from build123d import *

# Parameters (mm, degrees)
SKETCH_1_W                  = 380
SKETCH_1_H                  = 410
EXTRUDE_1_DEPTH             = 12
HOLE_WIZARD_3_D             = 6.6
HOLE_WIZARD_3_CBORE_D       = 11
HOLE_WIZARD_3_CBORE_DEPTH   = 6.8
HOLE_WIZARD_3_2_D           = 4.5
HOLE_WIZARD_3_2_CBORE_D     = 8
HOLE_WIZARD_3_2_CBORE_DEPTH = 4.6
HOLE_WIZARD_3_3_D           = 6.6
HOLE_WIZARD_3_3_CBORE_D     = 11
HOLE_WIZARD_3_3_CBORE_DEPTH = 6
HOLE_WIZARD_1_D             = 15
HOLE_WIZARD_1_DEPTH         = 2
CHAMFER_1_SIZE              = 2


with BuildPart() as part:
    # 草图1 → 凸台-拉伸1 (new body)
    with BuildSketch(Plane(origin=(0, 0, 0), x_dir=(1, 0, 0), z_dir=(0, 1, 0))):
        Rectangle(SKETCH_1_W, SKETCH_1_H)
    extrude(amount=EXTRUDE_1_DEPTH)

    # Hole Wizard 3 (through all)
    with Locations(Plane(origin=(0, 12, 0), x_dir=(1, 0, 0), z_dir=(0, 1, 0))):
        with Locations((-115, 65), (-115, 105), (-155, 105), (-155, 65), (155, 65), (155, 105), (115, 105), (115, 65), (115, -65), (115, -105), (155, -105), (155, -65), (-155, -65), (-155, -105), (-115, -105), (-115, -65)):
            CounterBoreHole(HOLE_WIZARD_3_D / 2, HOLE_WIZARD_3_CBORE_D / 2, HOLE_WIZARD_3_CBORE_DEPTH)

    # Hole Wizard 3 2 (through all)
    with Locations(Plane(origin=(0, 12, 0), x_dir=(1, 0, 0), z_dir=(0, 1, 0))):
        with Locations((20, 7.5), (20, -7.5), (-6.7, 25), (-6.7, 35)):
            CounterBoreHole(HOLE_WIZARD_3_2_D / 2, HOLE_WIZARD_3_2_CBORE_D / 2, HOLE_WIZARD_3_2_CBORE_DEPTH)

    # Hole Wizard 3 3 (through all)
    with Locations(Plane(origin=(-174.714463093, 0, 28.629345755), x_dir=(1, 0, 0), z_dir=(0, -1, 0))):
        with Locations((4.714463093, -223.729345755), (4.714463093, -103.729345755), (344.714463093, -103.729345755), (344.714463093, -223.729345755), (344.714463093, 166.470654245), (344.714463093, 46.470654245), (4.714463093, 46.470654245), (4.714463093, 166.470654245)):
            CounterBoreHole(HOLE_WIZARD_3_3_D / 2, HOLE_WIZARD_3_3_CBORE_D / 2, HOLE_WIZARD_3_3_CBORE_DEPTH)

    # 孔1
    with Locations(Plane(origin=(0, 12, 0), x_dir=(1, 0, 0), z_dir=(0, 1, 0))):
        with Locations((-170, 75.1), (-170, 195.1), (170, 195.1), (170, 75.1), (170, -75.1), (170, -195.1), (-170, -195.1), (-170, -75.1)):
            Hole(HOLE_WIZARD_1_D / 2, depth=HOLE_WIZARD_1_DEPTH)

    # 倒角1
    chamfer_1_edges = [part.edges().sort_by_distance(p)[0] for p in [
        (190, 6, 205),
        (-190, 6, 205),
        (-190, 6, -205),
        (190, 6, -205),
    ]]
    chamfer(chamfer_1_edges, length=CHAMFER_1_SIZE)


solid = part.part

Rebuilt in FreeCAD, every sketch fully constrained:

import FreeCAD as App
import Part
import Sketcher
from FreeCAD import Vector


def edges_at(feature, points):
    """Names of the edges that pass closest to the given points."""
    edges = feature.Shape.Edges
    near = lambda p: min(range(len(edges)), key=lambda i: edges[i].distToShape(Part.Vertex(*p))[0])
    return sorted({f"Edge{near(p) + 1}" for p in points})

doc = App.newDocument("Part")
body = doc.addObject("PartDesign::Body", "Body")

# Sketch on XZ plane
sketch1 = body.newObject("Sketcher::SketchObject", "Sketch")
sketch1.AttachmentSupport = (doc.getObject("XZ_Plane"), [""])
sketch1.MapMode = "FlatFace"
sketch1.addGeometry([
    Part.LineSegment(Vector(-190, -205, 0), Vector(-190, 205, 0)),
    Part.LineSegment(Vector(-190, 205, 0), Vector(190, 205, 0)),
    Part.LineSegment(Vector(190, 205, 0), Vector(190, -205, 0)),
    Part.LineSegment(Vector(190, -205, 0), Vector(-190, -205, 0)),
], False)
sketch1.addConstraint([
    Sketcher.Constraint("Coincident", 0, 2, 1, 1),
    Sketcher.Constraint("Coincident", 1, 2, 2, 1),
    Sketcher.Constraint("Coincident", 2, 2, 3, 1),
    Sketcher.Constraint("Coincident", 3, 2, 0, 1),
    Sketcher.Constraint("Vertical", 0),
    Sketcher.Constraint("Horizontal", 1),
    Sketcher.Constraint("Vertical", 2),
    Sketcher.Constraint("Horizontal", 3),
    Sketcher.Constraint("Symmetric", 0, 2, 2, 2, -1, 1),
    Sketcher.Constraint("DistanceX", 1, 1, 1, 2, 380.0),
    Sketcher.Constraint("DistanceY", 0, 1, 0, 2, 410.0),
])
pad1 = body.newObject("PartDesign::Pad", "Pad")
pad1.Profile = sketch1
pad1.Length = 12
pad1.Reversed = True

# Sketch on XZ plane
sketch2 = body.newObject("Sketcher::SketchObject", "Sketch001")
sketch2.AttachmentSupport = (doc.getObject("XZ_Plane"), [""])
sketch2.MapMode = "FlatFace"
sketch2.AttachmentOffset = App.Placement(Vector(0, 0, -12), App.Rotation())
sketch2.addGeometry([
    Part.Circle(Vector(-115, -65, 0), Vector(0, 0, 1), 3.3),  # 0
    Part.Circle(Vector(-115, -105, 0), Vector(0, 0, 1), 3.3),  # 1
    Part.Circle(Vector(-155, -105, 0), Vector(0, 0, 1), 3.3),  # 2
    Part.Circle(Vector(-155, -65, 0), Vector(0, 0, 1), 3.3),  # 3
    Part.Circle(Vector(155, -65, 0), Vector(0, 0, 1), 3.3),  # 4
    Part.Circle(Vector(155, -105, 0), Vector(0, 0, 1), 3.3),  # 5
    Part.Circle(Vector(115, -105, 0), Vector(0, 0, 1), 3.3),  # 6
    Part.Circle(Vector(115, -65, 0), Vector(0, 0, 1), 3.3),  # 7
    Part.Circle(Vector(115, 65, 0), Vector(0, 0, 1), 3.3),  # 8
    Part.Circle(Vector(115, 105, 0), Vector(0, 0, 1), 3.3),  # 9
    Part.Circle(Vector(155, 105, 0), Vector(0, 0, 1), 3.3),  # 10
    Part.Circle(Vector(155, 65, 0), Vector(0, 0, 1), 3.3),  # 11
    Part.Circle(Vector(-155, 65, 0), Vector(0, 0, 1), 3.3),  # 12
    Part.Circle(Vector(-155, 105, 0), Vector(0, 0, 1), 3.3),  # 13
    Part.Circle(Vector(-115, 105, 0), Vector(0, 0, 1), 3.3),  # 14
    Part.Circle(Vector(-115, 65, 0), Vector(0, 0, 1), 3.3),  # 15
], False)
sketch2.addConstraint([
    Sketcher.Constraint("Equal", 0, 1),
    Sketcher.Constraint("Equal", 1, 2),
    Sketcher.Constraint("Equal", 2, 3),
    Sketcher.Constraint("Equal", 3, 4),
    Sketcher.Constraint("Equal", 4, 5),
    Sketcher.Constraint("Equal", 5, 6),
    Sketcher.Constraint("Equal", 6, 7),
    Sketcher.Constraint("Equal", 7, 8),
    Sketcher.Constraint("Equal", 8, 9),
    Sketcher.Constraint("Equal", 9, 10),
    Sketcher.Constraint("Equal", 10, 11),
    Sketcher.Constraint("Equal", 11, 12),
    Sketcher.Constraint("Equal", 12, 13),
    Sketcher.Constraint("Equal", 13, 14),
    Sketcher.Constraint("Equal", 14, 15),
    Sketcher.Constraint("Symmetric", 0, 3, 8, 3, -1, 1),
    Sketcher.Constraint("Symmetric", 1, 3, 9, 3, -1, 1),
    Sketcher.Constraint("Symmetric", 2, 3, 10, 3, -1, 1),
    Sketcher.Constraint("Symmetric", 3, 3, 11, 3, -1, 1),
    Sketcher.Constraint("Symmetric", 4, 3, 12, 3, -1, 1),
    Sketcher.Constraint("Symmetric", 5, 3, 13, 3, -1, 1),
    Sketcher.Constraint("Symmetric", 6, 3, 14, 3, -1, 1),
    Sketcher.Constraint("Symmetric", 7, 3, 15, 3, -1, 1),
    Sketcher.Constraint("Symmetric", 3, 3, 4, 3, -2),
    Sketcher.Constraint("Symmetric", 2, 3, 5, 3, -2),
    Sketcher.Constraint("Symmetric", 1, 3, 6, 3, -2),
    Sketcher.Constraint("Symmetric", 0, 3, 7, 3, -2),
    Sketcher.Constraint("Horizontal", 1, 3, 2, 3),
    Sketcher.Constraint("Horizontal", 0, 3, 3, 3),
    Sketcher.Constraint("Vertical", 0, 3, 1, 3),
    Sketcher.Constraint("Vertical", 2, 3, 3, 3),
    Sketcher.Constraint("Diameter", 0, 6.6),
    Sketcher.Constraint("DistanceX", 0, 3, -1, 1, 115.0),
    Sketcher.Constraint("DistanceY", 0, 3, -1, 1, 65.0),
    Sketcher.Constraint("DistanceY", 1, 3, -1, 1, 105.0),
    Sketcher.Constraint("DistanceX", 2, 3, -1, 1, 155.0),
])
doc.recompute()
hole = body.newObject("PartDesign::Hole", "Hole")
hole.Profile = sketch2
hole.ThreadType = "None"
hole.Diameter = 6.6
hole.DepthType = "ThroughAll"
hole.HoleCutType = "Counterbore"
hole.HoleCutDiameter = 11
hole.HoleCutDepth = 6.8
hole.Reversed = True

# Sketch on XZ plane
sketch3 = body.newObject("Sketcher::SketchObject", "Sketch002")
sketch3.AttachmentSupport = (doc.getObject("XZ_Plane"), [""])
sketch3.MapMode = "FlatFace"
sketch3.AttachmentOffset = App.Placement(Vector(0, 0, -12), App.Rotation())
sketch3.addGeometry([
    Part.Circle(Vector(20, -7.5, 0), Vector(0, 0, 1), 2.25),
    Part.Circle(Vector(20, 7.5, 0), Vector(0, 0, 1), 2.25),
    Part.Circle(Vector(-6.7, -25, 0), Vector(0, 0, 1), 2.25),
    Part.Circle(Vector(-6.7, -35, 0), Vector(0, 0, 1), 2.25),
], False)
sketch3.addConstraint([
    Sketcher.Constraint("Equal", 0, 1),
    Sketcher.Constraint("Equal", 1, 2),
    Sketcher.Constraint("Equal", 2, 3),
    Sketcher.Constraint("Symmetric", 0, 3, 1, 3, -1),
    Sketcher.Constraint("Vertical", 2, 3, 3, 3),
    Sketcher.Constraint("Diameter", 0, 4.5),
    Sketcher.Constraint("DistanceX", -1, 1, 0, 3, 20.0),
    Sketcher.Constraint("DistanceY", 2, 3, -1, 1, 25.0),
    Sketcher.Constraint("DistanceY", 3, 3, -1, 1, 35.0),
    Sketcher.Constraint("DistanceY", 0, 3, 1, 3, 15.0),
    Sketcher.Constraint("DistanceX", 2, 3, -1, 1, 6.7),
])
doc.recompute()
hole2 = body.newObject("PartDesign::Hole", "Hole001")
hole2.Profile = sketch3
hole2.ThreadType = "None"
hole2.Diameter = 4.5
hole2.DepthType = "ThroughAll"
hole2.HoleCutType = "Counterbore"
hole2.HoleCutDiameter = 8
hole2.HoleCutDepth = 4.6
hole2.Reversed = True

# Sketch on XZ plane
sketch4 = body.newObject("Sketcher::SketchObject", "Sketch003")
sketch4.AttachmentSupport = (doc.getObject("XZ_Plane"), [""])
sketch4.MapMode = "FlatFace"
sketch4.addGeometry([
    Part.Circle(Vector(-170, -195.1, 0), Vector(0, 0, 1), 3.3),  # 0
    Part.Circle(Vector(-170, -75.1, 0), Vector(0, 0, 1), 3.3),  # 1
    Part.Circle(Vector(170, -75.1, 0), Vector(0, 0, 1), 3.3),  # 2
    Part.Circle(Vector(170, -195.1, 0), Vector(0, 0, 1), 3.3),  # 3
    Part.Circle(Vector(170, 195.1, 0), Vector(0, 0, 1), 3.3),  # 4
    Part.Circle(Vector(170, 75.1, 0), Vector(0, 0, 1), 3.3),  # 5
    Part.Circle(Vector(-170, 75.1, 0), Vector(0, 0, 1), 3.3),  # 6
    Part.Circle(Vector(-170, 195.1, 0), Vector(0, 0, 1), 3.3),  # 7
], False)
sketch4.addConstraint([
    Sketcher.Constraint("Equal", 0, 1),
    Sketcher.Constraint("Equal", 1, 2),
    Sketcher.Constraint("Equal", 2, 3),
    Sketcher.Constraint("Equal", 3, 4),
    Sketcher.Constraint("Equal", 4, 5),
    Sketcher.Constraint("Equal", 5, 6),
    Sketcher.Constraint("Equal", 6, 7),
    Sketcher.Constraint("Symmetric", 0, 3, 4, 3, -1, 1),
    Sketcher.Constraint("Symmetric", 1, 3, 5, 3, -1, 1),
    Sketcher.Constraint("Symmetric", 2, 3, 6, 3, -1, 1),
    Sketcher.Constraint("Symmetric", 3, 3, 7, 3, -1, 1),
    Sketcher.Constraint("Symmetric", 1, 3, 2, 3, -2),
    Sketcher.Constraint("Symmetric", 0, 3, 3, 3, -2),
    Sketcher.Constraint("Vertical", 0, 3, 1, 3),
    Sketcher.Constraint("Diameter", 0, 6.6),
    Sketcher.Constraint("DistanceX", 0, 3, -1, 1, 170.0),
    Sketcher.Constraint("DistanceY", 0, 3, 1, 3, 120.0),
    Sketcher.Constraint("DistanceY", 0, 3, -1, 1, 195.1),
])
doc.recompute()
hole3 = body.newObject("PartDesign::Hole", "Hole002")
hole3.Profile = sketch4
hole3.ThreadType = "None"
hole3.Diameter = 6.6
hole3.DepthType = "ThroughAll"
hole3.HoleCutType = "Counterbore"
hole3.HoleCutDiameter = 11
hole3.HoleCutDepth = 6

# Sketch on XZ plane
sketch5 = body.newObject("Sketcher::SketchObject", "Sketch004")
sketch5.AttachmentSupport = (doc.getObject("XZ_Plane"), [""])
sketch5.MapMode = "FlatFace"
sketch5.AttachmentOffset = App.Placement(Vector(0, 0, -12), App.Rotation())
sketch5.addGeometry([
    Part.Circle(Vector(-170, -75.1, 0), Vector(0, 0, 1), 7.5),  # 0
    Part.Circle(Vector(-170, -195.1, 0), Vector(0, 0, 1), 7.5),  # 1
    Part.Circle(Vector(170, -195.1, 0), Vector(0, 0, 1), 7.5),  # 2
    Part.Circle(Vector(170, -75.1, 0), Vector(0, 0, 1), 7.5),  # 3
    Part.Circle(Vector(170, 75.1, 0), Vector(0, 0, 1), 7.5),  # 4
    Part.Circle(Vector(170, 195.1, 0), Vector(0, 0, 1), 7.5),  # 5
    Part.Circle(Vector(-170, 195.1, 0), Vector(0, 0, 1), 7.5),  # 6
    Part.Circle(Vector(-170, 75.1, 0), Vector(0, 0, 1), 7.5),  # 7
], False)
sketch5.addConstraint([
    Sketcher.Constraint("Equal", 0, 1),
    Sketcher.Constraint("Equal", 1, 2),
    Sketcher.Constraint("Equal", 2, 3),
    Sketcher.Constraint("Equal", 3, 4),
    Sketcher.Constraint("Equal", 4, 5),
    Sketcher.Constraint("Equal", 5, 6),
    Sketcher.Constraint("Equal", 6, 7),
    Sketcher.Constraint("Symmetric", 0, 3, 4, 3, -1, 1),
    Sketcher.Constraint("Symmetric", 1, 3, 5, 3, -1, 1),
    Sketcher.Constraint("Symmetric", 2, 3, 6, 3, -1, 1),
    Sketcher.Constraint("Symmetric", 3, 3, 7, 3, -1, 1),
    Sketcher.Constraint("Symmetric", 1, 3, 2, 3, -2),
    Sketcher.Constraint("Symmetric", 0, 3, 3, 3, -2),
    Sketcher.Constraint("Vertical", 0, 3, 1, 3),
    Sketcher.Constraint("Diameter", 0, 15.0),
    Sketcher.Constraint("DistanceX", 0, 3, -1, 1, 170.0),
    Sketcher.Constraint("DistanceY", 1, 3, 0, 3, 120.0),
    Sketcher.Constraint("DistanceY", 0, 3, -1, 1, 75.1),
])
doc.recompute()
hole4 = body.newObject("PartDesign::Hole", "Hole003")
hole4.Profile = sketch5
hole4.ThreadType = "None"
hole4.Diameter = 15
hole4.DepthType = "Dimension"
hole4.Depth = 2
hole4.DrillPoint = "Flat"
hole4.Reversed = True
doc.recompute()

chamfer = body.newObject("PartDesign::Chamfer", "Chamfer")
chamfer.Base = (hole4, edges_at(hole4, [
    (190, 6, 205),
    (-190, 6, 205),
    (-190, 6, -205),
    (190, 6, -205),
]))
chamfer.Size = 2

doc.recompute()
